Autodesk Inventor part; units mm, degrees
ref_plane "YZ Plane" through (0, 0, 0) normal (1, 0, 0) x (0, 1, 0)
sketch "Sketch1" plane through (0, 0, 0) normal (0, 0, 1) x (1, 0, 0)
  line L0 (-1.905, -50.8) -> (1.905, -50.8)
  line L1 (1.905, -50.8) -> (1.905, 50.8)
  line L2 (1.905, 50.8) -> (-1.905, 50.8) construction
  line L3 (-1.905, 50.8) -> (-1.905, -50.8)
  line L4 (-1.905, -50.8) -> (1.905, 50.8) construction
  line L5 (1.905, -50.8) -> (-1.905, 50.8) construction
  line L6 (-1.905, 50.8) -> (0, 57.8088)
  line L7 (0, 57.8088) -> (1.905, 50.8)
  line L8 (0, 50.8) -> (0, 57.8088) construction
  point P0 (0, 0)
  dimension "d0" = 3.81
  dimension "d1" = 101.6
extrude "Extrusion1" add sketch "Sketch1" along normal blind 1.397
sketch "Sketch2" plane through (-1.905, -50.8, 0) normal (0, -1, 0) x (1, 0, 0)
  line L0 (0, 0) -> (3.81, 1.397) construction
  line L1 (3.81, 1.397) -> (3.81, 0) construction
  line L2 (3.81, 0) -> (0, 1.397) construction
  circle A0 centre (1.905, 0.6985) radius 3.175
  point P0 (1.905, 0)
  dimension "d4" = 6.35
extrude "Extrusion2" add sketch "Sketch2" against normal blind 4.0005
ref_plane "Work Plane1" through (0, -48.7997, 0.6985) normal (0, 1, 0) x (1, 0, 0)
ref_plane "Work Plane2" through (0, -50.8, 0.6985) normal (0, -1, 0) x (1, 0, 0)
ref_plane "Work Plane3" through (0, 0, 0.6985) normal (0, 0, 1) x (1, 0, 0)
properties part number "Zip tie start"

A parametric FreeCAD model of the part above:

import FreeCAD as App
import Part
import Sketcher

V = App.Vector
Q = App.Units.Quantity

doc = App.newDocument("Part")
body = doc.addObject("PartDesign::Body", "Body")

sketch1 = body.newObject("Sketcher::SketchObject", "Sketch")
sketch1.AttachmentSupport = (doc.getObject("XY_Plane"), [""])
sketch1.MapMode = "FlatFace"
sketch1.addGeometry([
    Part.LineSegment(V(-1.9, 50.8, 0), V(-1.9, -50.8, 0)),
    Part.LineSegment(V(-1.9, -50.8, 0), V(1.9, -50.8, 0)),
    Part.LineSegment(V(1.9, -50.8, 0), V(1.9, 50.8, 0)),
    Part.LineSegment(V(1.9, 50.8, 0), V(0, 57.8, 0)),
    Part.LineSegment(V(0, 57.8, 0), V(-1.9, 50.8, 0)),
], False)
sketch1.addConstraint([
    Sketcher.Constraint("Coincident", 0, 2, 1, 1),
    Sketcher.Constraint("Coincident", 1, 2, 2, 1),
    Sketcher.Constraint("Coincident", 2, 2, 3, 1),
    Sketcher.Constraint("Coincident", 3, 2, 4, 1),
    Sketcher.Constraint("Coincident", 4, 2, 0, 1),
    Sketcher.Constraint("Vertical", 0),
    Sketcher.Constraint("Horizontal", 1),
    Sketcher.Constraint("Vertical", 2),
    Sketcher.Constraint("Symmetric", 0, 2, 2, 2, -1, 1),
    Sketcher.Constraint("PointOnObject", 3, 2, -2),
    Sketcher.Constraint("Horizontal", 2, 2, 4, 2),
    Sketcher.Constraint("DistanceY", 0, 2, 0, 1, Q("4 in")),
    Sketcher.Constraint("DistanceX", 1, 1, 1, 2, Q("0.15 in")),
    Sketcher.Constraint("Distance", 3, 7.263),
])
pad1 = body.newObject("PartDesign::Pad", "Pad")
pad1.Profile = sketch1
pad1.Length = Q("0.055 in")

sketch2 = body.newObject("Sketcher::SketchObject", "Sketch001")
sketch2.AttachmentSupport = (doc.getObject("XZ_Plane"), [""])
sketch2.MapMode = "FlatFace"
sketch2.AttachmentOffset = App.Placement(V(0, 0, 2 * 25.4), App.Rotation())
sketch2.addGeometry(Part.Circle(V(0, 0.7, 0), V(0, 0, 1), 3.2), False)
sketch2.addConstraint([
    Sketcher.Constraint("PointOnObject", 0, 3, -2),
    Sketcher.Constraint("Diameter", 0, Q("0.25 in")),
    Sketcher.Constraint("DistanceY", -1, 1, 0, 3, Q("0.0275 in")),
])
pad2 = body.newObject("PartDesign::Pad", "Pad001")
pad2.Profile = sketch2
pad2.Length = Q("0.1575 in")
pad2.Reversed = True

doc.recompute()
